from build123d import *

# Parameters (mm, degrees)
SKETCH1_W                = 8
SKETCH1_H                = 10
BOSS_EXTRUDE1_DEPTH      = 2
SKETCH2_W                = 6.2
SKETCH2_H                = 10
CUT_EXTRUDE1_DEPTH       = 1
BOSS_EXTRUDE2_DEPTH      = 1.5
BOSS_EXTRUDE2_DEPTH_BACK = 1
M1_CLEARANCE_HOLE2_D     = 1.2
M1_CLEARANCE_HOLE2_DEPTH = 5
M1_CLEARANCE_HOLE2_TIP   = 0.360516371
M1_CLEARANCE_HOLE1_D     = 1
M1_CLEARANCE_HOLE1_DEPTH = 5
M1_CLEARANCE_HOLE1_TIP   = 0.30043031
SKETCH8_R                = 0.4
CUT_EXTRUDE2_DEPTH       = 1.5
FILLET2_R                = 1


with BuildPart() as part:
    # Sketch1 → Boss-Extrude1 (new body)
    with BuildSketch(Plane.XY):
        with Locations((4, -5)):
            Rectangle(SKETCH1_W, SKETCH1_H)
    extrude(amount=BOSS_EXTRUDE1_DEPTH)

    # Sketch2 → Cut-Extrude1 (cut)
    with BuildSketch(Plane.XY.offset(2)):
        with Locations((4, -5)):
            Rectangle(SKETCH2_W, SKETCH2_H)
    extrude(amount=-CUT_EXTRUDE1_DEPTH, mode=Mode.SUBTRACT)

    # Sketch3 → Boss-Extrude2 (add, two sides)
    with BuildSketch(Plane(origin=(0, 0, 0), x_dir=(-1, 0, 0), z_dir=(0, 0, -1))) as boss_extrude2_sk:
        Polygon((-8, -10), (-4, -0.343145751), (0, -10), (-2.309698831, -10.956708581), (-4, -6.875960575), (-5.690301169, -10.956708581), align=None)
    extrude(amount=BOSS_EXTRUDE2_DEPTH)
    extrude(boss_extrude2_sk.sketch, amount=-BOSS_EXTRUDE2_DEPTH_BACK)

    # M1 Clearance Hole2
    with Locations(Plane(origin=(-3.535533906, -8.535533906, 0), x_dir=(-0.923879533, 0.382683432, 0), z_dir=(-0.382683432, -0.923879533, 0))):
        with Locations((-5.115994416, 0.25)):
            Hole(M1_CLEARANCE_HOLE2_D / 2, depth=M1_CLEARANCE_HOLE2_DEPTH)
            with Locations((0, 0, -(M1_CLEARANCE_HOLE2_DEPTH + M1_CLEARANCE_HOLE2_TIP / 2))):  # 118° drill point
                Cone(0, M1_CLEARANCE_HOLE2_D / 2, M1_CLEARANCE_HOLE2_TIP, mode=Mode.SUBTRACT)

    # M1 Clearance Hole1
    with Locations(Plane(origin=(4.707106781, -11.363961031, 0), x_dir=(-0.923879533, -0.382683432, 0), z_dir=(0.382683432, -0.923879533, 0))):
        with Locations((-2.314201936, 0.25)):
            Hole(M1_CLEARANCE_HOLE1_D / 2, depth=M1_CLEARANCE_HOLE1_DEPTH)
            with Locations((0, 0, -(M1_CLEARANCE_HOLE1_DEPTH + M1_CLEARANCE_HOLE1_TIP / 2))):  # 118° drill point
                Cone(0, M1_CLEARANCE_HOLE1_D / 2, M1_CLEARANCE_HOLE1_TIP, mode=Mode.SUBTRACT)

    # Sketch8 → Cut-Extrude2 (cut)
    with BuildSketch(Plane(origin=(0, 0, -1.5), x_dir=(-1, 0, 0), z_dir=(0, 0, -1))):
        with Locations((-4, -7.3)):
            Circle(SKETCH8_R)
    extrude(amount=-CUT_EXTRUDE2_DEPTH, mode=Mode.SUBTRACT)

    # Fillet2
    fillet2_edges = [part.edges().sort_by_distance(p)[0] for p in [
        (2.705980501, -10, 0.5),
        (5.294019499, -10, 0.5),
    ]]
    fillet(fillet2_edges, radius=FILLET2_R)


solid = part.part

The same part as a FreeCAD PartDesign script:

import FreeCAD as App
import Part
import Sketcher
from FreeCAD import Vector
Q = App.Units.Quantity


def edges_at(feature, points):
    """Names of the edges that pass closest to the given points."""
    edges = feature.Shape.Edges
    near = lambda p: min(range(len(edges)), key=lambda i: edges[i].distToShape(Part.Vertex(*p))[0])
    return sorted({f"Edge{near(p) + 1}" for p in points})


def add_polygon(sketch, points):
    """Adds a closed chain of lines whose ends are joined by coincident constraints."""
    first, n = sketch.GeometryCount, len(points)
    for a, b in zip(points, points[1:] + points[:1]):
        sketch.addGeometry(Part.LineSegment(App.Vector(*a, 0), App.Vector(*b, 0)), False)
    for i in range(n):
        sketch.addConstraint(Sketcher.Constraint("Coincident", first + i, 2, first + (i + 1) % n, 1))

doc = App.newDocument("Part")
body = doc.addObject("PartDesign::Body", "Body")

sketch1 = doc.addObject("Sketcher::SketchObject", "Sketch")
body.addObject(sketch1)
sketch1.AttachmentSupport = (doc.XY_Plane, [""])
sketch1.MapMode = "FlatFace"
add_polygon(sketch1, [(0, 0), (0, -10), (8, -10), (8, 0)])
sketch1.addConstraint([
    Sketcher.Constraint("Vertical", 0),
    Sketcher.Constraint("Horizontal", 1),
    Sketcher.Constraint("Vertical", 2),
    Sketcher.Constraint("Horizontal", 3),
    Sketcher.Constraint("Coincident", 3, 2, -1, 1),
    Sketcher.Constraint("DistanceX", 1, 1, 1, 2, 8.0),
    Sketcher.Constraint("DistanceY", 0, 2, 0, 1, 10.0),
])
pad1 = doc.addObject("PartDesign::Pad", "Pad")
body.addObject(pad1)
pad1.Profile = sketch1
pad1.Length = 2

sketch2 = doc.addObject("Sketcher::SketchObject", "Sketch001")
body.addObject(sketch2)
sketch2.AttachmentSupport = (doc.XY_Plane, [""])
sketch2.MapMode = "FlatFace"
sketch2.AttachmentOffset = App.Placement(Vector(0, 0, 2), App.Rotation())
add_polygon(sketch2, [(0.9, 0), (0.9, -10), (7.1, -10), (7.1, 0)])
sketch2.addConstraint([
    Sketcher.Constraint("Vertical", 0),
    Sketcher.Constraint("Horizontal", 1),
    Sketcher.Constraint("Vertical", 2),
    Sketcher.Constraint("Horizontal", 3),
    Sketcher.Constraint("PointOnObject", 2, 2, -1),
    Sketcher.Constraint("DistanceY", 0, 2, 0, 1, 10.0),
    Sketcher.Constraint("DistanceX", 1, 1, 1, 2, 6.2),
    Sketcher.Constraint("DistanceX", -1, 1, 0, 2, 0.9),
])
pocket1 = doc.addObject("PartDesign::Pocket", "Pocket")
body.addObject(pocket1)
pocket1.Profile = sketch2
pocket1.Length = 1

sketch3 = doc.addObject("Sketcher::SketchObject", "Sketch002")
body.addObject(sketch3)
sketch3.AttachmentSupport = (doc.XY_Plane, [""])
sketch3.MapMode = "FlatFace"
add_polygon(sketch3, [(4, -0.343146), (8, -10), (5.690301, -10.956709), (4, -6.875961), (2.309699, -10.956709), (0, -10)])
sketch3.addConstraint([
    Sketcher.Constraint("PointOnObject", 4, 2, -2),
    Sketcher.Constraint("Perpendicular", 0, 1),
    Sketcher.Constraint("Perpendicular", 1, 2),
    Sketcher.Constraint("Perpendicular", 3, 4),
    Sketcher.Constraint("Perpendicular", 4, 5),
    Sketcher.Constraint("Horizontal", 1, 2, 3, 2),
    Sketcher.Constraint("Horizontal", 0, 2, 4, 2),
    Sketcher.Constraint("Vertical", 2, 2, 5, 2),
    Sketcher.Constraint("DistanceX", -1, 1, 0, 2, 8.0),
    Sketcher.Constraint("DistanceY", 0, 2, -1, 1, 10.0),
    Sketcher.Constraint("Angle", 0, Q("-67.5 deg")),
    Sketcher.Constraint("Distance", 1, 2.5),
])
pad2 = doc.addObject("PartDesign::Pad", "Pad001")
body.addObject(pad2)
pad2.Profile = sketch3
pad2.Type = "TwoLengths"
pad2.Length = 1.5
pad2.Length2 = 1
pad2.Reversed = True

sketch4 = doc.addObject("Sketcher::SketchObject", "Sketch003")
body.addObject(sketch4)
sketch4.Placement = App.Placement(Vector(-3.535534, -8.535534, 0), App.Rotation(Vector(-0.923879533, 0.382683432, 0), Vector(0, 0, -1.000000001), Vector(-0.382683432, -0.923879533, 0), "ZXY"))
sketch4.addGeometry(Part.Circle(Vector(-5.115994, 0.25, 0), Vector(0, 0, 1), 0.6), False)
sketch4.addConstraint([
    Sketcher.Constraint("Diameter", 0, 1.2),
    Sketcher.Constraint("DistanceY", -1, 1, 0, 3, 0.25),
    Sketcher.Constraint("DistanceX", 0, 3, -1, 1, 5.115994),
])
doc.recompute()
hole = doc.addObject("PartDesign::Hole", "Hole")
body.addObject(hole)
hole.Profile = sketch4
hole.ThreadType = "None"
hole.Diameter = 1.2
hole.DepthType = "Dimension"
hole.Depth = 5
hole.DrillPoint = "Angled"
hole.DrillPointAngle = 118

sketch5 = doc.addObject("Sketcher::SketchObject", "Sketch004")
body.addObject(sketch5)
sketch5.Placement = App.Placement(Vector(4.707107, -11.363961, 0), App.Rotation(Vector(-0.923879533, -0.382683432, 0), Vector(0, 0, -1.000000001), Vector(0.382683432, -0.923879533, 0), "ZXY"))
sketch5.addGeometry(Part.Circle(Vector(-2.314202, 0.25, 0), Vector(0, 0, 1), 0.5), False)
sketch5.addConstraint([
    Sketcher.Constraint("Diameter", 0, 1.0),
    Sketcher.Constraint("DistanceY", -1, 1, 0, 3, 0.25),
    Sketcher.Constraint("DistanceX", 0, 3, -1, 1, 2.314202),
])
doc.recompute()
hole2 = doc.addObject("PartDesign::Hole", "Hole001")
body.addObject(hole2)
hole2.Profile = sketch5
hole2.ThreadType = "None"
hole2.Diameter = 1
hole2.DepthType = "Dimension"
hole2.Depth = 5
hole2.DrillPoint = "Angled"
hole2.DrillPointAngle = 118

sketch6 = doc.addObject("Sketcher::SketchObject", "Sketch005")
body.addObject(sketch6)
sketch6.AttachmentSupport = (doc.XY_Plane, [""])
sketch6.MapMode = "FlatFace"
sketch6.AttachmentOffset = App.Placement(Vector(0, 0, -1.5), App.Rotation())
sketch6.addGeometry(Part.Circle(Vector(4, -7.3, 0), Vector(0, 0, 1), 0.4), False)
sketch6.addConstraint([
    Sketcher.Constraint("Diameter", 0, 0.8),
    Sketcher.Constraint("DistanceX", -1, 1, 0, 3, 4.0),
    Sketcher.Constraint("DistanceY", 0, 3, -1, 1, 7.3),
])
pocket2 = doc.addObject("PartDesign::Pocket", "Pocket001")
body.addObject(pocket2)
pocket2.Profile = sketch6
pocket2.Length = 1.5
pocket2.Reversed = True
doc.recompute()

fillet = doc.addObject("PartDesign::Fillet", "Fillet")
body.addObject(fillet)
fillet.Base = (pocket2, edges_at(pocket2, [(2.706, -10, 0.5), (5.294, -10, 0.5)]))
fillet.Radius = 1

doc.recompute()
